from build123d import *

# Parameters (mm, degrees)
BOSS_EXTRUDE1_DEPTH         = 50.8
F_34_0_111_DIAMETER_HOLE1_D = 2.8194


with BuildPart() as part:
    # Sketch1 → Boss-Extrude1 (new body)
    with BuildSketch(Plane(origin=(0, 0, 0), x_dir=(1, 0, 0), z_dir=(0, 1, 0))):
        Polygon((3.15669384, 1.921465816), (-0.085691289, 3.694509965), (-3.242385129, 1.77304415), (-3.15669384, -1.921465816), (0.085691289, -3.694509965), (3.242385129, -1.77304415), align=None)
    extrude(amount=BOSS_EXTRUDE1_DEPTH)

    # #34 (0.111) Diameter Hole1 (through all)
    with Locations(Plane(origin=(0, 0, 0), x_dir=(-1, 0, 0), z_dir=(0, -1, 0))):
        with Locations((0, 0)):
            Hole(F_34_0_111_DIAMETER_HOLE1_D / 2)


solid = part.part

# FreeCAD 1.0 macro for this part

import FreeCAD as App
import Part
import Sketcher
Q = App.Units.Quantity

doc = App.newDocument("Part")
body = doc.addObject("PartDesign::Body", "Body")

# Sketch on XZ plane
sketch1 = body.newObject("Sketcher::SketchObject", "Sketch")
sketch1.AttachmentSupport = (doc.getObject("XZ_Plane"), [""])
sketch1.MapMode = "FlatFace"
sketch1.addGeometry([
    Part.LineSegment(App.Vector(3.2, -1.9, 0), App.Vector(-0.1, -3.7, 0)),  # 0
    Part.LineSegment(App.Vector(-0.1, -3.7, 0), App.Vector(-3.2, -1.8, 0)),  # 1
    Part.LineSegment(App.Vector(-3.2, -1.8, 0), App.Vector(-3.2, 1.9, 0)),  # 2
    Part.LineSegment(App.Vector(-3.2, 1.9, 0), App.Vector(0.1, 3.7, 0)),  # 3
    Part.LineSegment(App.Vector(0.1, 3.7, 0), App.Vector(3.2, 1.8, 0)),  # 4
    Part.LineSegment(App.Vector(3.2, 1.8, 0), App.Vector(3.2, -1.9, 0)),  # 5
], False)
sketch1.addConstraint([
    Sketcher.Constraint("Coincident", 0, 2, 1, 1),
    Sketcher.Constraint("Coincident", 1, 2, 2, 1),
    Sketcher.Constraint("Coincident", 2, 2, 3, 1),
    Sketcher.Constraint("Coincident", 3, 2, 4, 1),
    Sketcher.Constraint("Coincident", 4, 2, 5, 1),
    Sketcher.Constraint("Coincident", 5, 2, 0, 1),
    Sketcher.Constraint("Symmetric", 0, 2, 3, 2, -1, 1),
    Sketcher.Constraint("Symmetric", 1, 2, 4, 2, -1, 1),
    Sketcher.Constraint("Symmetric", 2, 2, 5, 2, -1, 1),
    Sketcher.Constraint("Equal", 0, 1),
    Sketcher.Constraint("Equal", 1, 2),
    Sketcher.Constraint("DistanceX", 0, 2, -1, 1, Q("0.085691 mm")),
    Sketcher.Constraint("DistanceY", 0, 2, -1, 1, Q("3.69451 mm")),
    Sketcher.Constraint("DistanceX", 1, 2, 2, 2, Q("0.085691 mm")),
    Sketcher.Constraint("DistanceY", 1, 2, 2, 2, Q("3.69451 mm")),
])
pad1 = body.newObject("PartDesign::Pad", "Pad")
pad1.Profile = sketch1
pad1.Length = Q("2 in")
pad1.Reversed = True

# Sketch on XZ plane
sketch2 = body.newObject("Sketcher::SketchObject", "Sketch001")
sketch2.AttachmentSupport = (doc.getObject("XZ_Plane"), [""])
sketch2.MapMode = "FlatFace"
sketch2.addGeometry(Part.Circle(App.Vector(0, 0, 0), App.Vector(0, 0, 1), 1.4), False)
sketch2.addConstraint([
    Sketcher.Constraint("Coincident", 0, 3, -1, 1),
    Sketcher.Constraint("Diameter", 0, Q("0.111 in")),
])
doc.recompute()
hole = body.newObject("PartDesign::Hole", "Hole")
hole.Profile = sketch2
hole.ThreadType = "None"
hole.Diameter = Q("0.111 in")
hole.DepthType = "ThroughAll"

doc.recompute()
